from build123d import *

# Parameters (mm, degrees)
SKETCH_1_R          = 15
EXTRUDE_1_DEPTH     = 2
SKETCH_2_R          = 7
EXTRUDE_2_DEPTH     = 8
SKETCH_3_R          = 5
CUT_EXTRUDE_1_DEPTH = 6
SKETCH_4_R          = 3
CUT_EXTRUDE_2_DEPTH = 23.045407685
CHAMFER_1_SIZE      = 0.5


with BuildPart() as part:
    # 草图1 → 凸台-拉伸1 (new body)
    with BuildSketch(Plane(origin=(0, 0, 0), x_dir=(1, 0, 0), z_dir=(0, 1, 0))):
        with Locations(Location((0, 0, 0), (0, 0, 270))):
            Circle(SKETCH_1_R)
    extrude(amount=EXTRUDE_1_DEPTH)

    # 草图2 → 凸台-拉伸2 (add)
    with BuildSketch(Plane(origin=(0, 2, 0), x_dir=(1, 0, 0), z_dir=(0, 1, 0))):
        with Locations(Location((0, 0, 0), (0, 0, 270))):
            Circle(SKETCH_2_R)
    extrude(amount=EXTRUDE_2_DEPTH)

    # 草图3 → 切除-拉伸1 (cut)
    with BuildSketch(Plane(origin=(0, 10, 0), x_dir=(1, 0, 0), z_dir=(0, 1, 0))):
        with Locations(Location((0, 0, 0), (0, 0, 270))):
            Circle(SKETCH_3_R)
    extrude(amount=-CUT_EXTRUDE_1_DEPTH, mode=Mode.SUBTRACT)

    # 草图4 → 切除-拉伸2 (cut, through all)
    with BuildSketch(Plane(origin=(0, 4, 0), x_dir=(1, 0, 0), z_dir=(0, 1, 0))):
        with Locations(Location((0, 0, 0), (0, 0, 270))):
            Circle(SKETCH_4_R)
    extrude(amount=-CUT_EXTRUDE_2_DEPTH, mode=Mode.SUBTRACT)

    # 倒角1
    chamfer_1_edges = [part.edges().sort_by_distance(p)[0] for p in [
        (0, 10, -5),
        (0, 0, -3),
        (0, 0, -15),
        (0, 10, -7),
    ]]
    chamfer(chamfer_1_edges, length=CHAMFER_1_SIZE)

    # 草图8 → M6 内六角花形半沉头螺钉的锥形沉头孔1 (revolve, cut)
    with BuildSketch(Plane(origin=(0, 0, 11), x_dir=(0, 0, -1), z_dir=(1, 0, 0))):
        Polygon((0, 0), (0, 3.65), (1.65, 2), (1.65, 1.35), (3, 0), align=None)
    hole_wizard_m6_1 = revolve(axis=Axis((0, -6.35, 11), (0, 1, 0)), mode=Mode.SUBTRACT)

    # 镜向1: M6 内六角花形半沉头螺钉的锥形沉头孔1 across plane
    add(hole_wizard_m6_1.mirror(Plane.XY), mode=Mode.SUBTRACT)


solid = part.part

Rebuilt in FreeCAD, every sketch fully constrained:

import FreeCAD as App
import Part
import Sketcher
Q = App.Units.Quantity


def edges_at(feature, points):
    """Names of the edges that pass closest to the given points."""
    edges = feature.Shape.Edges
    near = lambda p: min(range(len(edges)), key=lambda i: edges[i].distToShape(Part.Vertex(*p))[0])
    return sorted({f"Edge{near(p) + 1}" for p in points})


def add_polygon(sketch, points):
    """Adds a closed chain of lines whose ends are joined by coincident constraints."""
    first, n = sketch.GeometryCount, len(points)
    for a, b in zip(points, points[1:] + points[:1]):
        sketch.addGeometry(Part.LineSegment(App.Vector(*a, 0), App.Vector(*b, 0)), False)
    for i in range(n):
        sketch.addConstraint(Sketcher.Constraint("Coincident", first + i, 2, first + (i + 1) % n, 1))

doc = App.newDocument("Part")
body = doc.addObject("PartDesign::Body", "Body")

# Sketch on XZ plane
sketch1 = body.newObject("Sketcher::SketchObject", "Sketch")
sketch1.AttachmentSupport = (doc.getObject("XZ_Plane"), [""])
sketch1.MapMode = "FlatFace"
sketch1.addGeometry(Part.Circle(App.Vector(0, 0, 0), App.Vector(0, 0, 1), 15), False)
sketch1.addConstraint([
    Sketcher.Constraint("Coincident", 0, 3, -1, 1),
    Sketcher.Constraint("Diameter", 0, 30.0),
])
pad1 = body.newObject("PartDesign::Pad", "Pad")
pad1.Profile = sketch1
pad1.Length = 2
pad1.Reversed = True

# Sketch on XZ plane
sketch2 = body.newObject("Sketcher::SketchObject", "Sketch001")
sketch2.AttachmentSupport = (doc.getObject("XZ_Plane"), [""])
sketch2.MapMode = "FlatFace"
sketch2.AttachmentOffset = App.Placement(App.Vector(0, 0, -2), App.Rotation())
sketch2.addGeometry(Part.Circle(App.Vector(0, 0, 0), App.Vector(0, 0, 1), 7), False)
sketch2.addConstraint([
    Sketcher.Constraint("Coincident", 0, 3, -1, 1),
    Sketcher.Constraint("Diameter", 0, 14.0),
])
pad2 = body.newObject("PartDesign::Pad", "Pad001")
pad2.Profile = sketch2
pad2.Length = 8
pad2.Reversed = True

# Sketch on XZ plane
sketch3 = body.newObject("Sketcher::SketchObject", "Sketch002")
sketch3.AttachmentSupport = (doc.getObject("XZ_Plane"), [""])
sketch3.MapMode = "FlatFace"
sketch3.AttachmentOffset = App.Placement(App.Vector(0, 0, -10), App.Rotation())
sketch3.addGeometry(Part.Circle(App.Vector(0, 0, 0), App.Vector(0, 0, 1), 5), False)
sketch3.addConstraint([
    Sketcher.Constraint("Coincident", 0, 3, -1, 1),
    Sketcher.Constraint("Diameter", 0, 10.0),
])
pocket1 = body.newObject("PartDesign::Pocket", "Pocket")
pocket1.Profile = sketch3
pocket1.Length = 6
pocket1.Reversed = True

# Sketch on XZ plane
sketch4 = body.newObject("Sketcher::SketchObject", "Sketch003")
sketch4.AttachmentSupport = (doc.getObject("XZ_Plane"), [""])
sketch4.MapMode = "FlatFace"
sketch4.AttachmentOffset = App.Placement(App.Vector(0, 0, -4), App.Rotation())
sketch4.addGeometry(Part.Circle(App.Vector(0, 0, 0), App.Vector(0, 0, 1), 3), False)
sketch4.addConstraint([
    Sketcher.Constraint("Coincident", 0, 3, -1, 1),
    Sketcher.Constraint("Diameter", 0, 6.0),
])
pocket2 = body.newObject("PartDesign::Pocket", "Pocket001")
pocket2.Profile = sketch4
pocket2.Type = "ThroughAll"
pocket2.Reversed = True
doc.recompute()

chamfer = body.newObject("PartDesign::Chamfer", "Chamfer")
chamfer.Base = (pocket2, edges_at(pocket2, [
    (0, 10, -5),
    (0, 0, -3),
    (0, 0, -15),
    (0, 10, -7),
]))
chamfer.Size = 0.5

# Sketch on YZ plane
sketch5 = body.newObject("Sketcher::SketchObject", "Sketch004")
sketch5.AttachmentSupport = (doc.getObject("YZ_Plane"), [""])
sketch5.MapMode = "FlatFace"
add_polygon(sketch5, [(3.6, 11), (0, 11), (0, 8), (1.4, 9.3), (2, 9.3)])  # lines 0-4
sketch5.addGeometry(Part.LineSegment(App.Vector(0, 11, 0), App.Vector(3.6, 11, 0)), True)  # axis
sketch5.addConstraint([
    Sketcher.Constraint("Horizontal", 0),
    Sketcher.Constraint("Vertical", 1),
    Sketcher.Constraint("Horizontal", 3),
    Sketcher.Constraint("Horizontal", 5),
    Sketcher.Constraint("Coincident", 5, 1, 0, 2),
    Sketcher.Constraint("PointOnObject", 0, 2, -2),
    Sketcher.Constraint("Parallel", 2, 4),
    Sketcher.Constraint("Equal", 0, 5),
    Sketcher.Constraint("DistanceY", 1, 2, 1, 1, 3.0),
    Sketcher.Constraint("Angle", 2, Q("45 deg")),
    Sketcher.Constraint("DistanceY", -1, 1, 0, 2, 11.0),
    Sketcher.Constraint("DistanceX", -1, 1, 3, 2, 2.0),
    Sketcher.Constraint("DistanceX", 0, 2, 0, 1, 3.65),
])
groove = body.newObject("PartDesign::Groove", "Groove")
groove.Profile = sketch5
groove.ReferenceAxis = (sketch5, ["Axis0"])
groove.Angle = 360
doc.recompute()

mirrored = body.newObject("PartDesign::Mirrored", "Mirrored")
mirrored.Originals = [groove]
mirrored.MirrorPlane = (doc.getObject("XY_Plane"), [""])
body.Tip = mirrored

doc.recompute()
